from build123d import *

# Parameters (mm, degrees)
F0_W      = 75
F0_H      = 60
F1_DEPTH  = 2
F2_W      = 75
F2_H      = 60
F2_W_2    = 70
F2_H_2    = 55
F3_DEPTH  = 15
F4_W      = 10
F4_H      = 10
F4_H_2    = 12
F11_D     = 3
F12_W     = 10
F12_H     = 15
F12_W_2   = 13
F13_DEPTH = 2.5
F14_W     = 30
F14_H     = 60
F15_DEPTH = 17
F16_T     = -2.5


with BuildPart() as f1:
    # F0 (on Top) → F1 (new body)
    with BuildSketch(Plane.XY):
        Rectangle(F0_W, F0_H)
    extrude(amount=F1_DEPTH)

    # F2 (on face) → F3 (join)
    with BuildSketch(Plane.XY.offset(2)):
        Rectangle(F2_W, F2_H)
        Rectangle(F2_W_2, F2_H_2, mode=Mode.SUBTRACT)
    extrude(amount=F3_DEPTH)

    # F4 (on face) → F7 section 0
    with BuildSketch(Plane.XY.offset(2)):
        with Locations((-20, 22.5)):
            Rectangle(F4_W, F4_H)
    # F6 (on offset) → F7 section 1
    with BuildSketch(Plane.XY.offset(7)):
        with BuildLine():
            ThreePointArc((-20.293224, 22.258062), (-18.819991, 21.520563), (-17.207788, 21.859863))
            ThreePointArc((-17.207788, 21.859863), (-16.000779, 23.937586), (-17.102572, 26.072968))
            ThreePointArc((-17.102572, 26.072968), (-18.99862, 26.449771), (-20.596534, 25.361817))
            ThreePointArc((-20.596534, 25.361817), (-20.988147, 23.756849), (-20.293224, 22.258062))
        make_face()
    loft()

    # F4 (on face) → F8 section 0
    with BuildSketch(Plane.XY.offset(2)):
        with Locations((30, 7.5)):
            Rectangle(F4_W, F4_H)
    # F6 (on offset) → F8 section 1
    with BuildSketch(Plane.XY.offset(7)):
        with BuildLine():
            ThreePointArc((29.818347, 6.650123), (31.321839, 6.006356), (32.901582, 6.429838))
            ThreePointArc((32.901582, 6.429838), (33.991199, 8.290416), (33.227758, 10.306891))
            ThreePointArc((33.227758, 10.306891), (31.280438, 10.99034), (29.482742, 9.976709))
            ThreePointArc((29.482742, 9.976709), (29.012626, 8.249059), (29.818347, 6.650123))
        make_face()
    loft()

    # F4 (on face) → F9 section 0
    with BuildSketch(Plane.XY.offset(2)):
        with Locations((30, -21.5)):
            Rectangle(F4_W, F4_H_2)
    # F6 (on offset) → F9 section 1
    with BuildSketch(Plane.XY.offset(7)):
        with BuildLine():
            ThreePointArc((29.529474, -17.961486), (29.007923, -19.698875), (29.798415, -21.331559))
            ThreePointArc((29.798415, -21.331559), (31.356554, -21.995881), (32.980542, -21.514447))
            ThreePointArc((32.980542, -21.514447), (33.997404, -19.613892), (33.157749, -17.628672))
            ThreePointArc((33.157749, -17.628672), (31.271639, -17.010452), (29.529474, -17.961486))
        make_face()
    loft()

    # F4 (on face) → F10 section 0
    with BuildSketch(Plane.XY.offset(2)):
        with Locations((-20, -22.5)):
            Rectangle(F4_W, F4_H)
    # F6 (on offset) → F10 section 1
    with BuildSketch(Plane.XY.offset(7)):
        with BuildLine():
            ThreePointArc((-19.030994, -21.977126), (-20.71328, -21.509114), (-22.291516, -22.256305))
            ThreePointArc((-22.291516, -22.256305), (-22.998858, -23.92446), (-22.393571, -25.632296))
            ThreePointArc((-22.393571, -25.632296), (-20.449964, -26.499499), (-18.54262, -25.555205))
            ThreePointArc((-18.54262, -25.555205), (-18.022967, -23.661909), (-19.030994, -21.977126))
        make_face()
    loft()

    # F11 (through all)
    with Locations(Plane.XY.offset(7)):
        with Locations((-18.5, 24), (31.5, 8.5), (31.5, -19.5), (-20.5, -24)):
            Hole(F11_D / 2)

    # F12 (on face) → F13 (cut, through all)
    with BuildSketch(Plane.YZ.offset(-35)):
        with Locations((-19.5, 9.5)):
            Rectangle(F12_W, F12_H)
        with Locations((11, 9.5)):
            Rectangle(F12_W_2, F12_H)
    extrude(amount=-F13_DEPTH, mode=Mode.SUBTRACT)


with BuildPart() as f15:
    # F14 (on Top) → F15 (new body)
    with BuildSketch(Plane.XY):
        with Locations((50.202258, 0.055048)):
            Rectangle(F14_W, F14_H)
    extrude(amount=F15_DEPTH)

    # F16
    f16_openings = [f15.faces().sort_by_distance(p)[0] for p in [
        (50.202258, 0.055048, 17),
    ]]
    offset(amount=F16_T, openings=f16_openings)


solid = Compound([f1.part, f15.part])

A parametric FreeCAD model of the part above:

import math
import FreeCAD as App
import Part
import Sketcher

V = App.Vector


def faces_at(feature, points):
    """Names of the faces that lie closest to the given points."""
    faces = feature.Shape.Faces
    near = lambda p: min(range(len(faces)), key=lambda i: faces[i].distToShape(Part.Vertex(*p))[0])
    return sorted({f"Face{near(p) + 1}" for p in points})


def add_polygon(sketch, points):
    """Adds a closed chain of lines whose ends are joined by coincident constraints."""
    first, n = sketch.GeometryCount, len(points)
    for a, b in zip(points, points[1:] + points[:1]):
        sketch.addGeometry(Part.LineSegment(App.Vector(*a, 0), App.Vector(*b, 0)), False)
    for i in range(n):
        sketch.addConstraint(Sketcher.Constraint("Coincident", first + i, 2, first + (i + 1) % n, 1))

doc = App.newDocument("Part")
body = doc.addObject("PartDesign::Body", "Body")

sketch1 = body.newObject("Sketcher::SketchObject", "Sketch")
sketch1.AttachmentSupport = (doc.getObject("XY_Plane"), [""])
sketch1.MapMode = "FlatFace"
add_polygon(sketch1, [(-38, 30), (-38, -30), (38, -30), (38, 30)])
sketch1.addConstraint(Sketcher.Constraint("Vertical", 0))
sketch1.addConstraint(Sketcher.Constraint("Horizontal", 1))
sketch1.addConstraint(Sketcher.Constraint("Vertical", 2))
sketch1.addConstraint(Sketcher.Constraint("Horizontal", 3))
sketch1.addConstraint(Sketcher.Constraint("Symmetric", 0, 2, 2, 2, -1, 1))
sketch1.addConstraint(Sketcher.Constraint("DistanceX", 1, 1, 1, 2, 75.0))
sketch1.addConstraint(Sketcher.Constraint("DistanceY", 0, 2, 0, 1, 60.0))
pad1 = body.newObject("PartDesign::Pad", "Pad")
pad1.Profile = sketch1
pad1.Length = 2

sketch2 = body.newObject("Sketcher::SketchObject", "Sketch001")
sketch2.AttachmentSupport = (doc.getObject("XY_Plane"), [""])
sketch2.MapMode = "FlatFace"
sketch2.AttachmentOffset = App.Placement(V(0, 0, 2), App.Rotation())
add_polygon(sketch2, [(-38, 30), (-38, -30), (38, -30), (38, 30)])
add_polygon(sketch2, [(35, -28), (-35, -28), (-35, 28), (35, 28)])
sketch2.addConstraint(Sketcher.Constraint("Vertical", 0))
sketch2.addConstraint(Sketcher.Constraint("Horizontal", 1))
sketch2.addConstraint(Sketcher.Constraint("Vertical", 2))
sketch2.addConstraint(Sketcher.Constraint("Horizontal", 3))
sketch2.addConstraint(Sketcher.Constraint("Horizontal", 4))
sketch2.addConstraint(Sketcher.Constraint("Vertical", 5))
sketch2.addConstraint(Sketcher.Constraint("Horizontal", 6))
sketch2.addConstraint(Sketcher.Constraint("Vertical", 7))
sketch2.addConstraint(Sketcher.Constraint("Symmetric", 0, 2, 2, 2, -1, 1))
sketch2.addConstraint(Sketcher.Constraint("Symmetric", 4, 2, 6, 2, -1, 1))
sketch2.addConstraint(Sketcher.Constraint("DistanceX", 1, 1, 1, 2, 75.0))
sketch2.addConstraint(Sketcher.Constraint("DistanceX", 4, 2, 4, 1, 70.0))
sketch2.addConstraint(Sketcher.Constraint("DistanceY", 0, 2, 0, 1, 60.0))
sketch2.addConstraint(Sketcher.Constraint("DistanceY", 5, 1, 5, 2, 55.0))
pad2 = body.newObject("PartDesign::Pad", "Pad001")
pad2.Profile = sketch2
pad2.Length = 15

sketch3 = body.newObject("Sketcher::SketchObject", "Sketch002")
sketch3.AttachmentSupport = (doc.getObject("XY_Plane"), [""])
sketch3.MapMode = "FlatFace"
sketch3.AttachmentOffset = App.Placement(V(0, 0, 2), App.Rotation())
add_polygon(sketch3, [(-25, 28), (-25, 18), (-15, 18), (-15, 28)])
sketch3.addConstraint(Sketcher.Constraint("Vertical", 0))
sketch3.addConstraint(Sketcher.Constraint("Horizontal", 1))
sketch3.addConstraint(Sketcher.Constraint("Vertical", 2))
sketch3.addConstraint(Sketcher.Constraint("Horizontal", 3))
sketch3.addConstraint(Sketcher.Constraint("Equal", 3, 0))
sketch3.addConstraint(Sketcher.Constraint("DistanceX", 1, 1, 1, 2, 10.0))
sketch3.addConstraint(Sketcher.Constraint("DistanceX", 0, 2, -1, 1, 25.0))
sketch3.addConstraint(Sketcher.Constraint("DistanceY", -1, 1, 0, 2, 17.5))

sketch4 = body.newObject("Sketcher::SketchObject", "Sketch003")
sketch4.AttachmentSupport = (doc.getObject("XY_Plane"), [""])
sketch4.MapMode = "FlatFace"
sketch4.AttachmentOffset = App.Placement(V(0, 0, 7), App.Rotation())
sketch4.addGeometry(Part.ArcOfCircle(Part.Circle(V(-18.5, 24, 0), V(0, 0, 1), 2.5), math.radians(-136), math.radians(-59)), False)
sketch4.addGeometry(Part.ArcOfCircle(Part.Circle(V(-18.5, 24, 0), V(0, 0, 1), 2.5), math.radians(-59), math.radians(56)), False)
sketch4.addGeometry(Part.ArcOfCircle(Part.Circle(V(-18.5, 24, 0), V(0, 0, 1), 2.5), math.radians(56), math.radians(147)), False)
sketch4.addGeometry(Part.ArcOfCircle(Part.Circle(V(-18.5, 24, 0), V(0, 0, 1), 2.5), math.radians(147), math.radians(224)), False)
sketch4.addConstraint(Sketcher.Constraint("Tangent", 0, 2, 1, 1))
sketch4.addConstraint(Sketcher.Constraint("Tangent", 1, 2, 2, 1))
sketch4.addConstraint(Sketcher.Constraint("Tangent", 2, 2, 3, 1))
sketch4.addConstraint(Sketcher.Constraint("Tangent", 3, 2, 0, 1))
sketch4.addConstraint(Sketcher.Constraint("Equal", 0, 1))
sketch4.addConstraint(Sketcher.Constraint("Radius", 1, 2.5))
sketch4.addConstraint(Sketcher.Constraint("DistanceY", -1, 1, 1, 3, 24.0))
sketch4.addConstraint(Sketcher.Constraint("DistanceX", 0, 3, -1, 1, 18.500001))
sketch4.addConstraint(Sketcher.Constraint("DistanceY", 0, 2, 3, 2, 0.398199))
sketch4.addConstraint(Sketcher.Constraint("DistanceX", 1, 2, -1, 1, 17.102572))
sketch4.addConstraint(Sketcher.Constraint("DistanceX", 3, 3, 0, 2, 1.29221))
sketch4.addConstraint(Sketcher.Constraint("DistanceY", 0, 3, 2, 2, 1.36182))

additiveloft = body.newObject("PartDesign::AdditiveLoft", "AdditiveLoft")
additiveloft.Profile = sketch3
additiveloft.Sections = [sketch4]

sketch5 = body.newObject("Sketcher::SketchObject", "Sketch004")
sketch5.AttachmentSupport = (doc.getObject("XY_Plane"), [""])
sketch5.MapMode = "FlatFace"
sketch5.AttachmentOffset = App.Placement(V(0, 0, 2), App.Rotation())
add_polygon(sketch5, [(25, 12), (25, 2), (35, 2), (35, 12)])
sketch5.addConstraint(Sketcher.Constraint("Vertical", 0))
sketch5.addConstraint(Sketcher.Constraint("Horizontal", 1))
sketch5.addConstraint(Sketcher.Constraint("Vertical", 2))
sketch5.addConstraint(Sketcher.Constraint("Horizontal", 3))
sketch5.addConstraint(Sketcher.Constraint("Equal", 3, 0))
sketch5.addConstraint(Sketcher.Constraint("DistanceX", 1, 1, 1, 2, 10.0))
sketch5.addConstraint(Sketcher.Constraint("DistanceX", -1, 1, 0, 2, 25.0))
sketch5.addConstraint(Sketcher.Constraint("DistanceY", -1, 1, 0, 2, 2.5))

sketch6 = body.newObject("Sketcher::SketchObject", "Sketch005")
sketch6.AttachmentSupport = (doc.getObject("XY_Plane"), [""])
sketch6.MapMode = "FlatFace"
sketch6.AttachmentOffset = App.Placement(V(0, 0, 7), App.Rotation())
sketch6.addGeometry(Part.ArcOfCircle(Part.Circle(V(31.5, 8.5, 0), V(0, 0, 1), 2.5), math.radians(-132), math.radians(-56)), False)
sketch6.addGeometry(Part.ArcOfCircle(Part.Circle(V(31.5, 8.5, 0), V(0, 0, 1), 2.5), math.radians(-56), math.radians(46)), False)
sketch6.addGeometry(Part.ArcOfCircle(Part.Circle(V(31.5, 8.5, 0), V(0, 0, 1), 2.5), math.radians(46), math.radians(144)), False)
sketch6.addGeometry(Part.ArcOfCircle(Part.Circle(V(31.5, 8.5, 0), V(0, 0, 1), 2.5), math.radians(144), math.radians(228)), False)
sketch6.addConstraint(Sketcher.Constraint("Tangent", 0, 2, 1, 1))
sketch6.addConstraint(Sketcher.Constraint("Tangent", 1, 2, 2, 1))
sketch6.addConstraint(Sketcher.Constraint("Tangent", 2, 2, 3, 1))
sketch6.addConstraint(Sketcher.Constraint("Tangent", 3, 2, 0, 1))
sketch6.addConstraint(Sketcher.Constraint("Equal", 0, 1))
sketch6.addConstraint(Sketcher.Constraint("Radius", 0, 2.500001))
sketch6.addConstraint(Sketcher.Constraint("DistanceX", -1, 1, 0, 3, 31.5))
sketch6.addConstraint(Sketcher.Constraint("DistanceY", -1, 1, 0, 3, 8.5))
sketch6.addConstraint(Sketcher.Constraint("DistanceY", -1, 1, 1, 2, 10.306891))
sketch6.addConstraint(Sketcher.Constraint("DistanceX", -1, 1, 2, 2, 29.482742))
sketch6.addConstraint(Sketcher.Constraint("DistanceX", 2, 3, 0, 2, 1.401582))
sketch6.addConstraint(Sketcher.Constraint("DistanceX", 3, 2, 1, 3, 1.68165))

additiveloft2 = body.newObject("PartDesign::AdditiveLoft", "AdditiveLoft001")
additiveloft2.Profile = sketch5
additiveloft2.Sections = [sketch6]

sketch7 = body.newObject("Sketcher::SketchObject", "Sketch006")
sketch7.AttachmentSupport = (doc.getObject("XY_Plane"), [""])
sketch7.MapMode = "FlatFace"
sketch7.AttachmentOffset = App.Placement(V(0, 0, 2), App.Rotation())
add_polygon(sketch7, [(25, -16), (25, -28), (35, -28), (35, -16)])
sketch7.addConstraint(Sketcher.Constraint("Vertical", 0))
sketch7.addConstraint(Sketcher.Constraint("Horizontal", 1))
sketch7.addConstraint(Sketcher.Constraint("Vertical", 2))
sketch7.addConstraint(Sketcher.Constraint("Horizontal", 3))
sketch7.addConstraint(Sketcher.Constraint("DistanceX", 1, 1, 1, 2, 10.0))
sketch7.addConstraint(Sketcher.Constraint("DistanceY", 0, 2, 0, 1, 12.0))
sketch7.addConstraint(Sketcher.Constraint("DistanceX", -1, 1, 0, 2, 25.0))
sketch7.addConstraint(Sketcher.Constraint("DistanceY", 0, 2, -1, 1, 27.5))

sketch8 = body.newObject("Sketcher::SketchObject", "Sketch007")
sketch8.AttachmentSupport = (doc.getObject("XY_Plane"), [""])
sketch8.MapMode = "FlatFace"
sketch8.AttachmentOffset = App.Placement(V(0, 0, 7), App.Rotation())
sketch8.addGeometry(Part.ArcOfCircle(Part.Circle(V(31.5, -19.5, 0), V(0, 0, 1), 2.5), math.radians(142), math.radians(227)), False)
sketch8.addGeometry(Part.ArcOfCircle(Part.Circle(V(31.5, -19.5, 0), V(0, 0, 1), 2.5), math.radians(-133), math.radians(-54)), False)
sketch8.addGeometry(Part.ArcOfCircle(Part.Circle(V(31.5, -19.5, 0), V(0, 0, 1), 2.5), math.radians(-54), math.radians(48)), False)
sketch8.addGeometry(Part.ArcOfCircle(Part.Circle(V(31.5, -19.5, 0), V(0, 0, 1), 2.5), math.radians(48), math.radians(142)), False)
sketch8.addConstraint(Sketcher.Constraint("Tangent", 0, 2, 1, 1))
sketch8.addConstraint(Sketcher.Constraint("Tangent", 1, 2, 2, 1))
sketch8.addConstraint(Sketcher.Constraint("Tangent", 2, 2, 3, 1))
sketch8.addConstraint(Sketcher.Constraint("Tangent", 3, 2, 0, 1))
sketch8.addConstraint(Sketcher.Constraint("Equal", 0, 1))
sketch8.addConstraint(Sketcher.Constraint("Radius", 0, 2.5))
sketch8.addConstraint(Sketcher.Constraint("DistanceX", -1, 1, 0, 3, 31.5))
sketch8.addConstraint(Sketcher.Constraint("DistanceY", 0, 3, -1, 1, 19.5))
sketch8.addConstraint(Sketcher.Constraint("DistanceY", 0, 2, -1, 1, 21.331559))
sketch8.addConstraint(Sketcher.Constraint("DistanceX", -1, 1, 2, 2, 33.157749))
sketch8.addConstraint(Sketcher.Constraint("DistanceX", 3, 3, 1, 2, 1.480542))
sketch8.addConstraint(Sketcher.Constraint("DistanceX", 3, 2, 0, 2, 0.268941))

additiveloft3 = body.newObject("PartDesign::AdditiveLoft", "AdditiveLoft002")
additiveloft3.Profile = sketch7
additiveloft3.Sections = [sketch8]

sketch9 = body.newObject("Sketcher::SketchObject", "Sketch008")
sketch9.AttachmentSupport = (doc.getObject("XY_Plane"), [""])
sketch9.MapMode = "FlatFace"
sketch9.AttachmentOffset = App.Placement(V(0, 0, 2), App.Rotation())
add_polygon(sketch9, [(-25, -18), (-25, -28), (-15, -28), (-15, -18)])
sketch9.addConstraint(Sketcher.Constraint("Vertical", 0))
sketch9.addConstraint(Sketcher.Constraint("Horizontal", 1))
sketch9.addConstraint(Sketcher.Constraint("Vertical", 2))
sketch9.addConstraint(Sketcher.Constraint("Horizontal", 3))
sketch9.addConstraint(Sketcher.Constraint("Equal", 3, 0))
sketch9.addConstraint(Sketcher.Constraint("DistanceX", 1, 1, 1, 2, 10.0))
sketch9.addConstraint(Sketcher.Constraint("DistanceX", 0, 2, -1, 1, 25.0))
sketch9.addConstraint(Sketcher.Constraint("DistanceY", 0, 2, -1, 1, 27.5))

sketch10 = body.newObject("Sketcher::SketchObject", "Sketch009")
sketch10.AttachmentSupport = (doc.getObject("XY_Plane"), [""])
sketch10.MapMode = "FlatFace"
sketch10.AttachmentOffset = App.Placement(V(0, 0, 7), App.Rotation())
sketch10.addGeometry(Part.ArcOfCircle(Part.Circle(V(-20.5, -24, 0), V(0, 0, 1), 2.5), math.radians(54), math.radians(136)), False)
sketch10.addGeometry(Part.ArcOfCircle(Part.Circle(V(-20.5, -24, 0), V(0, 0, 1), 2.5), math.radians(136), math.radians(221)), False)
sketch10.addGeometry(Part.ArcOfCircle(Part.Circle(V(-20.5, -24, 0), V(0, 0, 1), 2.5), math.radians(-139), math.radians(-38)), False)
sketch10.addGeometry(Part.ArcOfCircle(Part.Circle(V(-20.5, -24, 0), V(0, 0, 1), 2.5), math.radians(-38), math.radians(54)), False)
sketch10.addConstraint(Sketcher.Constraint("Tangent", 0, 2, 1, 1))
sketch10.addConstraint(Sketcher.Constraint("Tangent", 1, 2, 2, 1))
sketch10.addConstraint(Sketcher.Constraint("Tangent", 2, 2, 3, 1))
sketch10.addConstraint(Sketcher.Constraint("Tangent", 3, 2, 0, 1))
sketch10.addConstraint(Sketcher.Constraint("Equal", 0, 2))
sketch10.addConstraint(Sketcher.Constraint("Radius", 0, 2.499999))
sketch10.addConstraint(Sketcher.Constraint("DistanceY", 0, 3, -1, 1, 23.999999))
sketch10.addConstraint(Sketcher.Constraint("DistanceX", 0, 3, -1, 1, 20.500001))
sketch10.addConstraint(Sketcher.Constraint("DistanceX", 1, 2, -1, 1, 22.393571))
sketch10.addConstraint(Sketcher.Constraint("DistanceX", 2, 2, -1, 1, 18.54262))
sketch10.addConstraint(Sketcher.Constraint("DistanceX", 0, 2, 1, 3, 1.791519))
sketch10.addConstraint(Sketcher.Constraint("DistanceX", 0, 2, 3, 2, 3.260522))

additiveloft4 = body.newObject("PartDesign::AdditiveLoft", "AdditiveLoft003")
additiveloft4.Profile = sketch9
additiveloft4.Sections = [sketch10]

sketch11 = body.newObject("Sketcher::SketchObject", "Sketch010")
sketch11.AttachmentSupport = (doc.getObject("XY_Plane"), [""])
sketch11.MapMode = "FlatFace"
sketch11.AttachmentOffset = App.Placement(V(0, 0, 7), App.Rotation())
sketch11.addGeometry(Part.Circle(V(-18.5, 24, 0), V(0, 0, 1), 1.5), False)
sketch11.addGeometry(Part.Circle(V(31.5, 8.5, 0), V(0, 0, 1), 1.5), False)
sketch11.addGeometry(Part.Circle(V(31.5, -19.5, 0), V(0, 0, 1), 1.5), False)
sketch11.addGeometry(Part.Circle(V(-20.5, -24, 0), V(0, 0, 1), 1.5), False)
sketch11.addConstraint(Sketcher.Constraint("Equal", 0, 1))
sketch11.addConstraint(Sketcher.Constraint("Equal", 1, 2))
sketch11.addConstraint(Sketcher.Constraint("Equal", 2, 3))
sketch11.addConstraint(Sketcher.Constraint("Vertical", 1, 3, 2, 3))
sketch11.addConstraint(Sketcher.Constraint("Diameter", 0, 3.0))
sketch11.addConstraint(Sketcher.Constraint("DistanceY", -1, 1, 0, 3, 24.0))
sketch11.addConstraint(Sketcher.Constraint("DistanceY", 3, 3, -1, 1, 24.0))
sketch11.addConstraint(Sketcher.Constraint("DistanceX", 0, 3, 1, 3, 50.0))
sketch11.addConstraint(Sketcher.Constraint("DistanceY", 2, 3, 1, 3, 28.0))
sketch11.addConstraint(Sketcher.Constraint("DistanceX", 3, 3, 0, 3, 2.0))
sketch11.addConstraint(Sketcher.Constraint("DistanceX", 0, 3, -1, 1, 18.5))
sketch11.addConstraint(Sketcher.Constraint("DistanceY", -1, 1, 1, 3, 8.5))
doc.recompute()
hole = body.newObject("PartDesign::Hole", "Hole")
hole.Profile = sketch11
hole.ThreadType = "None"
hole.Diameter = 3
hole.DepthType = "ThroughAll"

sketch12 = body.newObject("Sketcher::SketchObject", "Sketch011")
sketch12.AttachmentSupport = (doc.getObject("YZ_Plane"), [""])
sketch12.MapMode = "FlatFace"
sketch12.AttachmentOffset = App.Placement(V(0, 0, -35), App.Rotation())
add_polygon(sketch12, [(-24, 17), (-24, 2), (-14, 2), (-14, 17)])
add_polygon(sketch12, [(4, 17), (4, 2), (18, 2), (18, 17)])
sketch12.addConstraint(Sketcher.Constraint("Vertical", 0))
sketch12.addConstraint(Sketcher.Constraint("Horizontal", 1))
sketch12.addConstraint(Sketcher.Constraint("Vertical", 2))
sketch12.addConstraint(Sketcher.Constraint("Horizontal", 3))
sketch12.addConstraint(Sketcher.Constraint("Vertical", 4))
sketch12.addConstraint(Sketcher.Constraint("Horizontal", 5))
sketch12.addConstraint(Sketcher.Constraint("Vertical", 6))
sketch12.addConstraint(Sketcher.Constraint("Horizontal", 7))
sketch12.addConstraint(Sketcher.Constraint("Horizontal", 1, 2, 4, 2))
sketch12.addConstraint(Sketcher.Constraint("Horizontal", 3, 2, 6, 2))
sketch12.addConstraint(Sketcher.Constraint("DistanceX", 1, 1, 1, 2, 10.0))
sketch12.addConstraint(Sketcher.Constraint("DistanceX", 5, 1, 5, 2, 13.0))
sketch12.addConstraint(Sketcher.Constraint("DistanceY", 0, 2, 0, 1, 15.0))
sketch12.addConstraint(Sketcher.Constraint("DistanceY", -1, 1, 0, 2, 2.0))
sketch12.addConstraint(Sketcher.Constraint("DistanceX", 1, 2, 4, 2, 19.0))
sketch12.addConstraint(Sketcher.Constraint("DistanceX", 0, 2, -1, 1, 24.5))
pocket1 = body.newObject("PartDesign::Pocket", "Pocket")
pocket1.Profile = sketch12
pocket1.Type = "ThroughAll"
body2 = doc.addObject("PartDesign::Body", "Body001")

sketch13 = body2.newObject("Sketcher::SketchObject", "Sketch012")
sketch13.AttachmentSupport = (doc.getObject("XY_Plane001"), [""])
sketch13.MapMode = "FlatFace"
add_polygon(sketch13, [(35, 30), (35, -30), (65, -30), (65, 30)])
sketch13.addConstraint(Sketcher.Constraint("Vertical", 0))
sketch13.addConstraint(Sketcher.Constraint("Horizontal", 1))
sketch13.addConstraint(Sketcher.Constraint("Vertical", 2))
sketch13.addConstraint(Sketcher.Constraint("Horizontal", 3))
sketch13.addConstraint(Sketcher.Constraint("DistanceX", 1, 1, 1, 2, 30.0))
sketch13.addConstraint(Sketcher.Constraint("DistanceY", 0, 2, 0, 1, 60.0))
sketch13.addConstraint(Sketcher.Constraint("DistanceX", -1, 1, 1, 2, 65.202258))
sketch13.addConstraint(Sketcher.Constraint("DistanceY", 0, 2, -1, 1, 29.944952))
pad3 = body2.newObject("PartDesign::Pad", "Pad002")
pad3.Profile = sketch13
pad3.Length = 17
doc.recompute()

thickness = body2.newObject("PartDesign::Thickness", "Thickness")
thickness.Base = (pad3, faces_at(pad3, [(50.202, 0.055, 17)]))
thickness.Value = 2.5
thickness.Reversed = True
thickness.Join = "Arc"

doc.recompute()
